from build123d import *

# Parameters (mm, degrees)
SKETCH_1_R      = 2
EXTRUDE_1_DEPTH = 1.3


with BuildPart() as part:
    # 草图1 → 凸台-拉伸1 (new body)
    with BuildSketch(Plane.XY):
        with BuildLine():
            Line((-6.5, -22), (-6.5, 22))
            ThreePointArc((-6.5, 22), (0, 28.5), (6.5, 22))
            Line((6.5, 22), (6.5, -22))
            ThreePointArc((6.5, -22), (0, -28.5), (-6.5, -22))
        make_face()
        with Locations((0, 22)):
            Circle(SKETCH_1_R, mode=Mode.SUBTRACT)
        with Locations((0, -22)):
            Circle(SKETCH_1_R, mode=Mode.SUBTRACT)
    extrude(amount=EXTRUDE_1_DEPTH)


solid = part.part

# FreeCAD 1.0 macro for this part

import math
import FreeCAD as App
import Part
import Sketcher

V = App.Vector

doc = App.newDocument("Part")
params = doc.addObject("Spreadsheet::Sheet", "Params")
for row, (alias, value) in enumerate([
    ("sketch1_diameter", "4 mm"),
    ("sketch1_radius", "6.5 mm"),
    ("sketch1_height", "44 mm"),
    ("pad1_length", "1.3 mm"),
], start=1):
    params.set(f"A{row}", alias)
    params.set(f"B{row}", "=" + value)
    params.setAlias(f"B{row}", alias)

body = doc.addObject("PartDesign::Body", "Body")

sketch1 = doc.addObject("Sketcher::SketchObject", "Sketch")
body.addObject(sketch1)
sketch1.AttachmentSupport = (doc.XY_Plane, [""])
sketch1.MapMode = "FlatFace"
sketch1.addGeometry([
    Part.LineSegment(V(-6.5, 22, 0), V(-6.5, -22, 0)),
    Part.ArcOfCircle(Part.Circle(V(0, -22, 0), V(0, 0, 1), 6.5), math.radians(180), math.radians(360)),
    Part.LineSegment(V(6.5, -22, 0), V(6.5, 22, 0)),
    Part.ArcOfCircle(Part.Circle(V(0, 22, 0), V(0, 0, 1), 6.5), math.radians(0), math.radians(180)),
    Part.Circle(V(0, -22, 0), V(0, 0, 1), 2),
    Part.Circle(V(0, 22, 0), V(0, 0, 1), 2),
], False)
sketch1.addConstraint([
    Sketcher.Constraint("Tangent", 0, 2, 1, 1),
    Sketcher.Constraint("Tangent", 1, 2, 2, 1),
    Sketcher.Constraint("Tangent", 2, 2, 3, 1),
    Sketcher.Constraint("Tangent", 3, 2, 0, 1),
    Sketcher.Constraint("Vertical", 0),
    Sketcher.Constraint("Vertical", 2),
    Sketcher.Constraint("Coincident", 4, 3, 1, 3),
    Sketcher.Constraint("Coincident", 5, 3, 3, 3),
    Sketcher.Constraint("Equal", 4, 5),
    Sketcher.Constraint("Symmetric", 1, 3, 3, 3, -1, 1),
    Sketcher.Constraint("Diameter", 4, 4.0),
    Sketcher.Constraint("Radius", 1, 6.5),
    Sketcher.Constraint("DistanceY", 0, 2, 0, 1, 44.0),
])
sketch1.setExpression("Constraints[10]", "Params.sketch1_diameter")
sketch1.setExpression("Constraints[11]", "Params.sketch1_radius")
sketch1.setExpression("Constraints[12]", "Params.sketch1_height")
pad1 = doc.addObject("PartDesign::Pad", "Pad")
body.addObject(pad1)
pad1.Profile = sketch1
pad1.setExpression("Length", "Params.pad1_length")

doc.recompute()
